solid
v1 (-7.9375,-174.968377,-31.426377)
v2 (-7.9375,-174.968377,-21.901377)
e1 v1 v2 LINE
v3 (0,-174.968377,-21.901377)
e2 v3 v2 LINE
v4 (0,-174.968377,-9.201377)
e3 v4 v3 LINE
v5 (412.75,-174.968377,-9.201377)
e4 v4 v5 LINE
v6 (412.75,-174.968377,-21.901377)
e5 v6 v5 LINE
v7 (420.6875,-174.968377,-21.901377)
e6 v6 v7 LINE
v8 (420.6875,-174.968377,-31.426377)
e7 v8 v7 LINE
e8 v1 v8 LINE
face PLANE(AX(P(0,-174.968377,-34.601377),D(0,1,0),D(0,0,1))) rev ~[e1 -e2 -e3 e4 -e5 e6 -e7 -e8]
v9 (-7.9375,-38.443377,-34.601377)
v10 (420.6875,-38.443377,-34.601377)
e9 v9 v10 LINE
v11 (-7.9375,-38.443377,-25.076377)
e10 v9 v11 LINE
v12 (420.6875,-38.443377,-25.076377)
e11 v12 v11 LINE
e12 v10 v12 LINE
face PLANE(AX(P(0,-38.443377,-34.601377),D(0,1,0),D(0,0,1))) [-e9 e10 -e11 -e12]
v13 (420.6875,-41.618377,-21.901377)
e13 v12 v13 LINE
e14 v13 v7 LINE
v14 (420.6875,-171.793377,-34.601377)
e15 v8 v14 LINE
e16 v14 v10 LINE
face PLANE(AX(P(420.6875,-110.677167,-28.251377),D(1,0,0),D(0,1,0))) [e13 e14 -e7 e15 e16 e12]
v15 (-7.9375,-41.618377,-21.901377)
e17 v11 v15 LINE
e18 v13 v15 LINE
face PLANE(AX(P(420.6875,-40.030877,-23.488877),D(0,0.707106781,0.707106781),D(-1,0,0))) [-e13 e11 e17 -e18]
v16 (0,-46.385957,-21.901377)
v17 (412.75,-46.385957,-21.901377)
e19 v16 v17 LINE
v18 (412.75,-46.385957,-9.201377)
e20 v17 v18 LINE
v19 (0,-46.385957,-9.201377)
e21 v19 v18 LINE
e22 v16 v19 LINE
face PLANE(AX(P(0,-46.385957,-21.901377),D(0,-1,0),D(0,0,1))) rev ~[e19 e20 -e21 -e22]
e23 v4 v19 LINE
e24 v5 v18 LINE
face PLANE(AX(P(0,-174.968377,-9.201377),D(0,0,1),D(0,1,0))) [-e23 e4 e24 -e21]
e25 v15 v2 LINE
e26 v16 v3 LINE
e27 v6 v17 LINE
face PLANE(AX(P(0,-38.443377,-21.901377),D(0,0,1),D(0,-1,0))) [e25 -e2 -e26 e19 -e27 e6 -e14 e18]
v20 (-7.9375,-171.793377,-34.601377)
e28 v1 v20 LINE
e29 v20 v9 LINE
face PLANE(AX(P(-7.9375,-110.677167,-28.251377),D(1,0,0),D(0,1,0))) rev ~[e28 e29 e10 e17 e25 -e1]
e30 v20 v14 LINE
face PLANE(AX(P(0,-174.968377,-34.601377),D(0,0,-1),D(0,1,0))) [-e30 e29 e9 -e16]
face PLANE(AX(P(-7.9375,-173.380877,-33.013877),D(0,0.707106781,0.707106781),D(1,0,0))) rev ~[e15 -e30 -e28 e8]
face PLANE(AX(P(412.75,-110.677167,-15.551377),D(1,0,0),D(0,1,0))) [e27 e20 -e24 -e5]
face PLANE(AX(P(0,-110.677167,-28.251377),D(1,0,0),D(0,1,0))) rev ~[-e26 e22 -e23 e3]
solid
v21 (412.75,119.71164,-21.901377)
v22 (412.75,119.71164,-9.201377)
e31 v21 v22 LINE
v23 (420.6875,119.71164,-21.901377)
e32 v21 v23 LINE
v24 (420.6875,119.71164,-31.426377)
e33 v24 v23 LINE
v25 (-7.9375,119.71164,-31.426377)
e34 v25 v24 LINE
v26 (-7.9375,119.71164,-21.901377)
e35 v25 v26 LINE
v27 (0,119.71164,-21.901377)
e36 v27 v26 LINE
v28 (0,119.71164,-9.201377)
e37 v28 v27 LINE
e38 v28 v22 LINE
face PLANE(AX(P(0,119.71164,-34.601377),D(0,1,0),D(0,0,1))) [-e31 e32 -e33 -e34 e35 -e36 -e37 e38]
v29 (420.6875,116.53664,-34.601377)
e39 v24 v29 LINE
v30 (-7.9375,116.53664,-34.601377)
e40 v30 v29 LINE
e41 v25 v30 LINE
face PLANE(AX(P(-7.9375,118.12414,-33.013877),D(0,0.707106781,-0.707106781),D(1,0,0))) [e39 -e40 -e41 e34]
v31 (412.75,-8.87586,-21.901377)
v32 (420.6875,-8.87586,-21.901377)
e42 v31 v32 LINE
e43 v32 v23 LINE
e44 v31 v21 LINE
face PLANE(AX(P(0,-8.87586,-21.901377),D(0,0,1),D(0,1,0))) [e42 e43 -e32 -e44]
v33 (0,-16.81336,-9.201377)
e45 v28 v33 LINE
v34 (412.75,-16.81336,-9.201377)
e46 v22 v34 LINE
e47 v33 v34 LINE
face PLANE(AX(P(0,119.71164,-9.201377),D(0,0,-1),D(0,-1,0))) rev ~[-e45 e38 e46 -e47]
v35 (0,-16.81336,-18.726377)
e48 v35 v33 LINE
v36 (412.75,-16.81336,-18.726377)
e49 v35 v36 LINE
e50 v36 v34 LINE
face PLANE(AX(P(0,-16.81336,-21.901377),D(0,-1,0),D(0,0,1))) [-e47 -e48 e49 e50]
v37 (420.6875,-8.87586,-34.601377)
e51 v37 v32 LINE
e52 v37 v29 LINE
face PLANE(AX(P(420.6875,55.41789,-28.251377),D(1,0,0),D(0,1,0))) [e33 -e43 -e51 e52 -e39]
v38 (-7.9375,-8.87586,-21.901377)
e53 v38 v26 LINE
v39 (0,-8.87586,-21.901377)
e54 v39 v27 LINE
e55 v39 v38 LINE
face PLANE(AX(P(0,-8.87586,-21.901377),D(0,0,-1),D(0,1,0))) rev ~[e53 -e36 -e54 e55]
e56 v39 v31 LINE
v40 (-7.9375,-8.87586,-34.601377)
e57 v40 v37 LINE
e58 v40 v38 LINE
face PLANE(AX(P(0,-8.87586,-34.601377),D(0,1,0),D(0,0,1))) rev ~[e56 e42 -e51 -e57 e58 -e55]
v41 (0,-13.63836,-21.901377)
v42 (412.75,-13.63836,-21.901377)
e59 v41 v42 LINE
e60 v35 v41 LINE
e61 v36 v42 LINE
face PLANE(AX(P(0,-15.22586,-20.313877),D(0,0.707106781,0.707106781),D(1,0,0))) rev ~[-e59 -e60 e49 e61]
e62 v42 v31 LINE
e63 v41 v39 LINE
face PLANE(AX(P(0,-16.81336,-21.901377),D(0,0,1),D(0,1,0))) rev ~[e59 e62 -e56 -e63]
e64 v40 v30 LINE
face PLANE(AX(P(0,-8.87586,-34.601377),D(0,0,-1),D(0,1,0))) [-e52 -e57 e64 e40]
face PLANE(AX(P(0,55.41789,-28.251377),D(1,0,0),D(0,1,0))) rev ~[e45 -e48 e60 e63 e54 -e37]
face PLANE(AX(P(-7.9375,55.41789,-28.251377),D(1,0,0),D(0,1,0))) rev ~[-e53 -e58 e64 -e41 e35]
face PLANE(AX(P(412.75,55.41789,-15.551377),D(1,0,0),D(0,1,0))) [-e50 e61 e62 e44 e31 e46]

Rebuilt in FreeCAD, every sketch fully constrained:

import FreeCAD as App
import Part
import Sketcher

V = App.Vector
Q = App.Units.Quantity


def edges_at(feature, points):
    """Names of the edges that pass closest to the given points."""
    edges = feature.Shape.Edges
    near = lambda p: min(range(len(edges)), key=lambda i: edges[i].distToShape(Part.Vertex(*p))[0])
    return sorted({f"Edge{near(p) + 1}" for p in points})

doc = App.newDocument("Part")
body = doc.addObject("PartDesign::Body", "Body")
body.AllowCompound = True

sketch1 = body.newObject("Sketcher::SketchObject", "Sketch")
sketch1.AttachmentSupport = (doc.getObject("YZ_Plane"), [""])
sketch1.MapMode = "FlatFace"
sketch1.addGeometry(Part.LineSegment(V(120, -22, 0), V(120, -9, 0)), False)
sketch1.addGeometry(Part.LineSegment(V(120, -9, 0), V(-17, -9, 0)), False)
sketch1.addGeometry(Part.LineSegment(V(-17, -9, 0), V(-17, -22, 0)), False)
sketch1.addGeometry(Part.LineSegment(V(-17, -22, 0), V(120, -22, 0)), False)
sketch1.addGeometry(Part.LineSegment(V(-175, -9, 0), V(-175, -22, 0)), False)
sketch1.addGeometry(Part.LineSegment(V(-175, -22, 0), V(-46, -22, 0)), False)
sketch1.addGeometry(Part.LineSegment(V(-46, -22, 0), V(-46, -9, 0)), False)
sketch1.addGeometry(Part.LineSegment(V(-46, -9, 0), V(-175, -9, 0)), False)
sketch1.addConstraint(Sketcher.Constraint("Coincident", 0, 2, 1, 1))
sketch1.addConstraint(Sketcher.Constraint("Coincident", 1, 2, 2, 1))
sketch1.addConstraint(Sketcher.Constraint("Coincident", 2, 2, 3, 1))
sketch1.addConstraint(Sketcher.Constraint("Coincident", 3, 2, 0, 1))
sketch1.addConstraint(Sketcher.Constraint("Coincident", 4, 2, 5, 1))
sketch1.addConstraint(Sketcher.Constraint("Coincident", 5, 2, 6, 1))
sketch1.addConstraint(Sketcher.Constraint("Coincident", 6, 2, 7, 1))
sketch1.addConstraint(Sketcher.Constraint("Coincident", 7, 2, 4, 1))
sketch1.addConstraint(Sketcher.Constraint("Vertical", 0))
sketch1.addConstraint(Sketcher.Constraint("Horizontal", 1))
sketch1.addConstraint(Sketcher.Constraint("Vertical", 2))
sketch1.addConstraint(Sketcher.Constraint("Horizontal", 3))
sketch1.addConstraint(Sketcher.Constraint("Vertical", 4))
sketch1.addConstraint(Sketcher.Constraint("Horizontal", 5))
sketch1.addConstraint(Sketcher.Constraint("Vertical", 6))
sketch1.addConstraint(Sketcher.Constraint("Horizontal", 7))
sketch1.addConstraint(Sketcher.Constraint("Horizontal", 3, 2, 4, 2))
sketch1.addConstraint(Sketcher.Constraint("Horizontal", 1, 2, 6, 2))
sketch1.addConstraint(Sketcher.Constraint("DistanceY", 0, 1, 0, 2, Q("0.5 in")))
sketch1.addConstraint(Sketcher.Constraint("DistanceX", 1, 2, 1, 1, Q("5.375 in")))
sketch1.addConstraint(Sketcher.Constraint("DistanceX", 5, 1, 5, 2, Q("5.0623 in")))
sketch1.addConstraint(Sketcher.Constraint("DistanceX", -1, 1, 0, 2, Q("119.71164 mm")))
sketch1.addConstraint(Sketcher.Constraint("DistanceY", 0, 2, -1, 1, Q("9.201377 mm")))
sketch1.addConstraint(Sketcher.Constraint("DistanceX", 4, 2, -1, 1, Q("174.968377 mm")))
pad1 = body.newObject("PartDesign::Pad", "Pad")
pad1.Profile = sketch1
pad1.Length = Q("16.25 in")

sketch2 = body.newObject("Sketcher::SketchObject", "Sketch001")
sketch2.AttachmentSupport = (doc.getObject("YZ_Plane"), [""])
sketch2.MapMode = "FlatFace"
sketch2.addGeometry(Part.LineSegment(V(-9, -22, 0), V(-9, -35, 0)), False)
sketch2.addGeometry(Part.LineSegment(V(-9, -35, 0), V(120, -35, 0)), False)
sketch2.addGeometry(Part.LineSegment(V(120, -35, 0), V(120, -22, 0)), False)
sketch2.addGeometry(Part.LineSegment(V(120, -22, 0), V(-9, -22, 0)), False)
sketch2.addConstraint(Sketcher.Constraint("Coincident", 0, 2, 1, 1))
sketch2.addConstraint(Sketcher.Constraint("Coincident", 1, 2, 2, 1))
sketch2.addConstraint(Sketcher.Constraint("Coincident", 2, 2, 3, 1))
sketch2.addConstraint(Sketcher.Constraint("Coincident", 3, 2, 0, 1))
sketch2.addConstraint(Sketcher.Constraint("Vertical", 0))
sketch2.addConstraint(Sketcher.Constraint("Horizontal", 1))
sketch2.addConstraint(Sketcher.Constraint("Vertical", 2))
sketch2.addConstraint(Sketcher.Constraint("Horizontal", 3))
sketch2.addConstraint(Sketcher.Constraint("DistanceY", 0, 2, 0, 1, Q("0.5 in")))
sketch2.addConstraint(Sketcher.Constraint("DistanceX", 1, 1, 1, 2, Q("5.0625 in")))
sketch2.addConstraint(Sketcher.Constraint("DistanceX", 0, 2, -1, 1, Q("8.87586 mm")))
sketch2.addConstraint(Sketcher.Constraint("DistanceY", 0, 2, -1, 1, Q("34.601377 mm")))
pad2 = body.newObject("PartDesign::Pad", "Pad001")
pad2.Profile = sketch2
pad2.Type = "TwoLengths"
pad2.Length = Q("16.5625 in")
pad2.Length2 = Q("0.3125 in")

sketch3 = body.newObject("Sketcher::SketchObject", "Sketch002")
sketch3.AttachmentSupport = (doc.getObject("YZ_Plane"), [""])
sketch3.MapMode = "FlatFace"
sketch3.addGeometry(Part.LineSegment(V(-175, -22, 0), V(-175, -35, 0)), False)
sketch3.addGeometry(Part.LineSegment(V(-175, -35, 0), V(-38, -35, 0)), False)
sketch3.addGeometry(Part.LineSegment(V(-38, -35, 0), V(-38, -22, 0)), False)
sketch3.addGeometry(Part.LineSegment(V(-38, -22, 0), V(-175, -22, 0)), False)
sketch3.addConstraint(Sketcher.Constraint("Coincident", 0, 2, 1, 1))
sketch3.addConstraint(Sketcher.Constraint("Coincident", 1, 2, 2, 1))
sketch3.addConstraint(Sketcher.Constraint("Coincident", 2, 2, 3, 1))
sketch3.addConstraint(Sketcher.Constraint("Coincident", 3, 2, 0, 1))
sketch3.addConstraint(Sketcher.Constraint("Vertical", 0))
sketch3.addConstraint(Sketcher.Constraint("Horizontal", 1))
sketch3.addConstraint(Sketcher.Constraint("Vertical", 2))
sketch3.addConstraint(Sketcher.Constraint("Horizontal", 3))
sketch3.addConstraint(Sketcher.Constraint("DistanceY", 0, 2, 0, 1, Q("0.5 in")))
sketch3.addConstraint(Sketcher.Constraint("DistanceX", 1, 1, 1, 2, Q("5.375 in")))
sketch3.addConstraint(Sketcher.Constraint("DistanceX", 0, 2, -1, 1, Q("174.968377 mm")))
sketch3.addConstraint(Sketcher.Constraint("DistanceY", 0, 2, -1, 1, Q("34.601377 mm")))
pad3 = body.newObject("PartDesign::Pad", "Pad002")
pad3.Profile = sketch3
pad3.Type = "TwoLengths"
pad3.Length = Q("16.5625 in")
pad3.Length2 = Q("0.3125 in")
doc.recompute()

chamfer = body.newObject("PartDesign::Chamfer", "Chamfer")
chamfer.Base = (pad3, edges_at(pad3, [
    (206.375, -38.443, -21.901),
    (206.375, -16.813, -21.901),
    (206.375, 119.712, -34.601),
    (206.375, -174.968, -34.601),
]))
chamfer.Size = Q("0.125 in")

doc.recompute()
